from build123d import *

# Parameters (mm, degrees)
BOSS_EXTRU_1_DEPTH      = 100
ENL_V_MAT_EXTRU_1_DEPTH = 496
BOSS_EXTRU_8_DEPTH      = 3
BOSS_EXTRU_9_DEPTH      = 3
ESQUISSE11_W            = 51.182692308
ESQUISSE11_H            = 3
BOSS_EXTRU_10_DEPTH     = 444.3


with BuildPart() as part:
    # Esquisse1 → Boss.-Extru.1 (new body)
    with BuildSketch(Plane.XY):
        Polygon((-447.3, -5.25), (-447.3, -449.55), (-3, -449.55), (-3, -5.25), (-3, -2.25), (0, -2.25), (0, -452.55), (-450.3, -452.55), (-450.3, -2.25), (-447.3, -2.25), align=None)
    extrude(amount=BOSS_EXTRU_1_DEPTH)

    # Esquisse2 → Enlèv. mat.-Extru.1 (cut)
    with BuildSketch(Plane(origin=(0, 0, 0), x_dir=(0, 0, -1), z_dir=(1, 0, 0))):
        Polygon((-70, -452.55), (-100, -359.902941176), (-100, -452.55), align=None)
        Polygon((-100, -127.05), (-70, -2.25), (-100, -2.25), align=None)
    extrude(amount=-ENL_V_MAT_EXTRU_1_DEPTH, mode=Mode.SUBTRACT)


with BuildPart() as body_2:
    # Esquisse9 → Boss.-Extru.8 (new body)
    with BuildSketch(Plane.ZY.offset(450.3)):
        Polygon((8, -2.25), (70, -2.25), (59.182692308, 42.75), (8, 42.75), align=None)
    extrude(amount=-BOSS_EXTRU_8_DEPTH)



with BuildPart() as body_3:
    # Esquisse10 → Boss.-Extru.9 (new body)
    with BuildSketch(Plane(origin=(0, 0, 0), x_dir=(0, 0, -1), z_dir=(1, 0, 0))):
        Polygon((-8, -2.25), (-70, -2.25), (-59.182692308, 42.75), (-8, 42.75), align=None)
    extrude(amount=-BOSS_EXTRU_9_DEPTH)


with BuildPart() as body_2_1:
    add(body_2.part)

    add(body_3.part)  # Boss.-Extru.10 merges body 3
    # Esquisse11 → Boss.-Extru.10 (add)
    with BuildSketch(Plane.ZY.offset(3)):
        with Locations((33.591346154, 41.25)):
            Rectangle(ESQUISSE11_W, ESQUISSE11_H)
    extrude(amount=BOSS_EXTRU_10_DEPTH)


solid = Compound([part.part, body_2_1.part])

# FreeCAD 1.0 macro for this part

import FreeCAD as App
import Part
import Sketcher

V = App.Vector
Q = App.Units.Quantity

doc = App.newDocument("Part")
params = doc.addObject("Spreadsheet::Sheet", "Params")
for row, (alias, value) in enumerate([
    ("sketch1_width", "3 mm"),
    ("sketch1_width2", "450.3 mm"),
    ("sketch1_height", "447.3 mm"),
    ("pad1_length", "100 mm"),
    ("sketch2_height", "30 mm"),
    ("sketch2_width", "124.8 mm"),
    ("pocket1_length", "496 mm"),
    ("sketch3_width", "45 mm"),
    ("sketch3_height", "62 mm"),
    ("pad2_length", "3 mm"),
    ("sketch4_width", "45 mm"),
    ("sketch4_height", "62 mm"),
    ("pad3_length", "3 mm"),
    ("sketch5_width", "3 mm"),
    ("pad4_length", "444.3 mm"),
], start=1):
    params.set(f"A{row}", alias)
    params.set(f"B{row}", "=" + value)
    params.setAlias(f"B{row}", alias)

body = doc.addObject("PartDesign::Body", "Body")

# Sketch on XY plane
sketch1 = body.newObject("Sketcher::SketchObject", "Sketch")
sketch1.AttachmentSupport = (doc.getObject("XY_Plane"), [""])
sketch1.MapMode = "FlatFace"
sketch1.addGeometry(Part.LineSegment(V(-447.3, -449.6, 0), V(-447.3, -2.2, 0)), False)
sketch1.addGeometry(Part.LineSegment(V(-447.3, -2.2, 0), V(-450.3, -2.2, 0)), False)
sketch1.addGeometry(Part.LineSegment(V(-450.3, -2.2, 0), V(-450.3, -452.6, 0)), False)
sketch1.addGeometry(Part.LineSegment(V(-450.3, -452.6, 0), V(0, -452.6, 0)), False)
sketch1.addGeometry(Part.LineSegment(V(0, -452.6, 0), V(0, -2.2, 0)), False)
sketch1.addGeometry(Part.LineSegment(V(0, -2.2, 0), V(-3, -2.2, 0)), False)
sketch1.addGeometry(Part.LineSegment(V(-3, -2.2, 0), V(-3, -449.6, 0)), False)
sketch1.addGeometry(Part.LineSegment(V(-3, -449.6, 0), V(-447.3, -449.6, 0)), False)
sketch1.addConstraint(Sketcher.Constraint("Coincident", 0, 2, 1, 1))
sketch1.addConstraint(Sketcher.Constraint("Coincident", 1, 2, 2, 1))
sketch1.addConstraint(Sketcher.Constraint("Coincident", 2, 2, 3, 1))
sketch1.addConstraint(Sketcher.Constraint("Coincident", 3, 2, 4, 1))
sketch1.addConstraint(Sketcher.Constraint("Coincident", 4, 2, 5, 1))
sketch1.addConstraint(Sketcher.Constraint("Coincident", 5, 2, 6, 1))
sketch1.addConstraint(Sketcher.Constraint("Coincident", 6, 2, 7, 1))
sketch1.addConstraint(Sketcher.Constraint("Coincident", 7, 2, 0, 1))
sketch1.addConstraint(Sketcher.Constraint("Vertical", 0))
sketch1.addConstraint(Sketcher.Constraint("Horizontal", 1))
sketch1.addConstraint(Sketcher.Constraint("Vertical", 2))
sketch1.addConstraint(Sketcher.Constraint("Horizontal", 3))
sketch1.addConstraint(Sketcher.Constraint("Vertical", 4))
sketch1.addConstraint(Sketcher.Constraint("Horizontal", 5))
sketch1.addConstraint(Sketcher.Constraint("Vertical", 6))
sketch1.addConstraint(Sketcher.Constraint("Horizontal", 7))
sketch1.addConstraint(Sketcher.Constraint("PointOnObject", 3, 2, -2))
sketch1.addConstraint(Sketcher.Constraint("Horizontal", 1, 2, 4, 2))
sketch1.addConstraint(Sketcher.Constraint("Equal", 1, 5))
sketch1.addConstraint(Sketcher.Constraint("Equal", 3, 2))
sketch1.addConstraint(Sketcher.Constraint("DistanceX", 1, 2, 1, 1, Q("3 mm")))
sketch1.addConstraint(Sketcher.Constraint("DistanceX", 3, 1, 3, 2, Q("450.3 mm")))
sketch1.addConstraint(Sketcher.Constraint("DistanceY", 0, 1, 0, 2, Q("447.3 mm")))
sketch1.addConstraint(Sketcher.Constraint("DistanceY", 0, 2, -1, 1, Q("2.25 mm")))
sketch1.setExpression("Constraints[20]", "Params.sketch1_width")
sketch1.setExpression("Constraints[21]", "Params.sketch1_width2")
sketch1.setExpression("Constraints[22]", "Params.sketch1_height")
pad1 = body.newObject("PartDesign::Pad", "Pad")
pad1.Profile = sketch1
pad1.setExpression("Length", "Params.pad1_length")

# Sketch on YZ plane
sketch2 = body.newObject("Sketcher::SketchObject", "Sketch001")
sketch2.AttachmentSupport = (doc.getObject("YZ_Plane"), [""])
sketch2.MapMode = "FlatFace"
sketch2.addGeometry(Part.LineSegment(V(-453, 70, 0), V(-360, 100, 0)), False)
sketch2.addGeometry(Part.LineSegment(V(-360, 100, 0), V(-453, 100, 0)), False)
sketch2.addGeometry(Part.LineSegment(V(-453, 100, 0), V(-453, 70, 0)), False)
sketch2.addGeometry(Part.LineSegment(V(-127, 100, 0), V(-2, 70, 0)), False)
sketch2.addGeometry(Part.LineSegment(V(-2, 70, 0), V(-2, 100, 0)), False)
sketch2.addGeometry(Part.LineSegment(V(-2, 100, 0), V(-127, 100, 0)), False)
sketch2.addConstraint(Sketcher.Constraint("Coincident", 0, 2, 1, 1))
sketch2.addConstraint(Sketcher.Constraint("Coincident", 1, 2, 2, 1))
sketch2.addConstraint(Sketcher.Constraint("Coincident", 2, 2, 0, 1))
sketch2.addConstraint(Sketcher.Constraint("Coincident", 3, 2, 4, 1))
sketch2.addConstraint(Sketcher.Constraint("Coincident", 4, 2, 5, 1))
sketch2.addConstraint(Sketcher.Constraint("Coincident", 5, 2, 3, 1))
sketch2.addConstraint(Sketcher.Constraint("Horizontal", 1))
sketch2.addConstraint(Sketcher.Constraint("Vertical", 2))
sketch2.addConstraint(Sketcher.Constraint("Vertical", 4))
sketch2.addConstraint(Sketcher.Constraint("Horizontal", 5))
sketch2.addConstraint(Sketcher.Constraint("Horizontal", 2, 2, 3, 2))
sketch2.addConstraint(Sketcher.Constraint("Horizontal", 1, 2, 4, 2))
sketch2.addConstraint(Sketcher.Constraint("DistanceY", 2, 2, 2, 1, Q("30 mm")))
sketch2.addConstraint(Sketcher.Constraint("DistanceX", 5, 2, 5, 1, Q("124.8 mm")))
sketch2.addConstraint(Sketcher.Constraint("DistanceY", -1, 1, 0, 2, Q("100 mm")))
sketch2.addConstraint(Sketcher.Constraint("DistanceX", 2, 2, 3, 2, Q("450.3 mm")))
sketch2.addConstraint(Sketcher.Constraint("DistanceX", 1, 2, -1, 1, Q("452.55 mm")))
sketch2.addConstraint(Sketcher.Constraint("DistanceX", 1, 2, 1, 1, Q("92.647059 mm")))
sketch2.setExpression("Constraints[12]", "Params.sketch2_height")
sketch2.setExpression("Constraints[13]", "Params.sketch2_width")
pocket1 = body.newObject("PartDesign::Pocket", "Pocket")
pocket1.Profile = sketch2
pocket1.setExpression("Length", "Params.pocket1_length")
body2 = doc.addObject("PartDesign::Body", "Body001")

# Sketch on YZ plane
sketch3 = body2.newObject("Sketcher::SketchObject", "Sketch002")
sketch3.AttachmentSupport = (doc.getObject("YZ_Plane001"), [""])
sketch3.MapMode = "FlatFace"
sketch3.AttachmentOffset = App.Placement(V(0, 0, -450.3), App.Rotation())
sketch3.addGeometry(Part.LineSegment(V(-2, 8, 0), V(-2, 70, 0)), False)
sketch3.addGeometry(Part.LineSegment(V(-2, 70, 0), V(43, 59, 0)), False)
sketch3.addGeometry(Part.LineSegment(V(43, 59, 0), V(43, 8, 0)), False)
sketch3.addGeometry(Part.LineSegment(V(43, 8, 0), V(-2, 8, 0)), False)
sketch3.addConstraint(Sketcher.Constraint("Coincident", 0, 2, 1, 1))
sketch3.addConstraint(Sketcher.Constraint("Coincident", 1, 2, 2, 1))
sketch3.addConstraint(Sketcher.Constraint("Coincident", 2, 2, 3, 1))
sketch3.addConstraint(Sketcher.Constraint("Coincident", 3, 2, 0, 1))
sketch3.addConstraint(Sketcher.Constraint("Vertical", 0))
sketch3.addConstraint(Sketcher.Constraint("Vertical", 2))
sketch3.addConstraint(Sketcher.Constraint("Horizontal", 3))
sketch3.addConstraint(Sketcher.Constraint("DistanceX", 3, 2, 3, 1, Q("45 mm")))
sketch3.addConstraint(Sketcher.Constraint("DistanceY", 0, 1, 0, 2, Q("62 mm")))
sketch3.addConstraint(Sketcher.Constraint("DistanceY", -1, 1, 0, 2, Q("70 mm")))
sketch3.addConstraint(Sketcher.Constraint("DistanceX", 0, 2, -1, 1, Q("2.25 mm")))
sketch3.addConstraint(Sketcher.Constraint("Distance", 1, Q("46.281899 mm")))
sketch3.setExpression("Constraints[7]", "Params.sketch3_width")
sketch3.setExpression("Constraints[8]", "Params.sketch3_height")
pad2 = body2.newObject("PartDesign::Pad", "Pad001")
pad2.Profile = sketch3
pad2.setExpression("Length", "Params.pad2_length")
body3 = doc.addObject("PartDesign::Body", "Body002")

# Sketch on YZ plane
sketch4 = body3.newObject("Sketcher::SketchObject", "Sketch003")
sketch4.AttachmentSupport = (doc.getObject("YZ_Plane002"), [""])
sketch4.MapMode = "FlatFace"
sketch4.addGeometry(Part.LineSegment(V(-2, 70, 0), V(-2, 8, 0)), False)
sketch4.addGeometry(Part.LineSegment(V(-2, 8, 0), V(43, 8, 0)), False)
sketch4.addGeometry(Part.LineSegment(V(43, 8, 0), V(43, 59, 0)), False)
sketch4.addGeometry(Part.LineSegment(V(43, 59, 0), V(-2, 70, 0)), False)
sketch4.addConstraint(Sketcher.Constraint("Coincident", 0, 2, 1, 1))
sketch4.addConstraint(Sketcher.Constraint("Coincident", 1, 2, 2, 1))
sketch4.addConstraint(Sketcher.Constraint("Coincident", 2, 2, 3, 1))
sketch4.addConstraint(Sketcher.Constraint("Coincident", 3, 2, 0, 1))
sketch4.addConstraint(Sketcher.Constraint("Vertical", 0))
sketch4.addConstraint(Sketcher.Constraint("Horizontal", 1))
sketch4.addConstraint(Sketcher.Constraint("Vertical", 2))
sketch4.addConstraint(Sketcher.Constraint("DistanceX", 1, 1, 1, 2, Q("45 mm")))
sketch4.addConstraint(Sketcher.Constraint("DistanceY", 0, 2, 0, 1, Q("62 mm")))
sketch4.addConstraint(Sketcher.Constraint("DistanceY", -1, 1, 0, 2, Q("8 mm")))
sketch4.addConstraint(Sketcher.Constraint("DistanceX", 0, 2, -1, 1, Q("2.25 mm")))
sketch4.addConstraint(Sketcher.Constraint("Distance", 3, Q("46.281899 mm")))
sketch4.setExpression("Constraints[7]", "Params.sketch4_width")
sketch4.setExpression("Constraints[8]", "Params.sketch4_height")
pad3 = body3.newObject("PartDesign::Pad", "Pad002")
pad3.Profile = sketch4
pad3.setExpression("Length", "Params.pad3_length")
pad3.Reversed = True
body2.AllowCompound = True
doc.recompute()

boolean = body2.newObject("PartDesign::Boolean", "Boolean")
boolean.Type = "Fuse"
boolean.addObjects([body3])

# Sketch on YZ plane
sketch5 = body2.newObject("Sketcher::SketchObject", "Sketch004")
sketch5.AttachmentSupport = (doc.getObject("YZ_Plane001"), [""])
sketch5.MapMode = "FlatFace"
sketch5.AttachmentOffset = App.Placement(V(0, 0, -3), App.Rotation())
sketch5.addGeometry(Part.LineSegment(V(42.8, 8, 0), V(39.8, 8, 0)), False)
sketch5.addGeometry(Part.LineSegment(V(39.8, 8, 0), V(39.8, 59.2, 0)), False)
sketch5.addGeometry(Part.LineSegment(V(39.8, 59.2, 0), V(42.8, 59.2, 0)), False)
sketch5.addGeometry(Part.LineSegment(V(42.8, 59.2, 0), V(42.8, 8, 0)), False)
sketch5.addConstraint(Sketcher.Constraint("Coincident", 0, 2, 1, 1))
sketch5.addConstraint(Sketcher.Constraint("Coincident", 1, 2, 2, 1))
sketch5.addConstraint(Sketcher.Constraint("Coincident", 2, 2, 3, 1))
sketch5.addConstraint(Sketcher.Constraint("Coincident", 3, 2, 0, 1))
sketch5.addConstraint(Sketcher.Constraint("Horizontal", 0))
sketch5.addConstraint(Sketcher.Constraint("Vertical", 1))
sketch5.addConstraint(Sketcher.Constraint("Horizontal", 2))
sketch5.addConstraint(Sketcher.Constraint("Vertical", 3))
sketch5.addConstraint(Sketcher.Constraint("DistanceX", 0, 2, 0, 1, Q("3 mm")))
sketch5.addConstraint(Sketcher.Constraint("DistanceY", -1, 1, 0, 2, Q("8 mm")))
sketch5.addConstraint(Sketcher.Constraint("DistanceX", -1, 1, 0, 2, Q("39.75 mm")))
sketch5.addConstraint(Sketcher.Constraint("DistanceY", 1, 1, 1, 2, Q("51.182692 mm")))
sketch5.setExpression("Constraints[8]", "Params.sketch5_width")
pad4 = body2.newObject("PartDesign::Pad", "Pad003")
pad4.Profile = sketch5
pad4.setExpression("Length", "Params.pad4_length")
pad4.Reversed = True

doc.recompute()
